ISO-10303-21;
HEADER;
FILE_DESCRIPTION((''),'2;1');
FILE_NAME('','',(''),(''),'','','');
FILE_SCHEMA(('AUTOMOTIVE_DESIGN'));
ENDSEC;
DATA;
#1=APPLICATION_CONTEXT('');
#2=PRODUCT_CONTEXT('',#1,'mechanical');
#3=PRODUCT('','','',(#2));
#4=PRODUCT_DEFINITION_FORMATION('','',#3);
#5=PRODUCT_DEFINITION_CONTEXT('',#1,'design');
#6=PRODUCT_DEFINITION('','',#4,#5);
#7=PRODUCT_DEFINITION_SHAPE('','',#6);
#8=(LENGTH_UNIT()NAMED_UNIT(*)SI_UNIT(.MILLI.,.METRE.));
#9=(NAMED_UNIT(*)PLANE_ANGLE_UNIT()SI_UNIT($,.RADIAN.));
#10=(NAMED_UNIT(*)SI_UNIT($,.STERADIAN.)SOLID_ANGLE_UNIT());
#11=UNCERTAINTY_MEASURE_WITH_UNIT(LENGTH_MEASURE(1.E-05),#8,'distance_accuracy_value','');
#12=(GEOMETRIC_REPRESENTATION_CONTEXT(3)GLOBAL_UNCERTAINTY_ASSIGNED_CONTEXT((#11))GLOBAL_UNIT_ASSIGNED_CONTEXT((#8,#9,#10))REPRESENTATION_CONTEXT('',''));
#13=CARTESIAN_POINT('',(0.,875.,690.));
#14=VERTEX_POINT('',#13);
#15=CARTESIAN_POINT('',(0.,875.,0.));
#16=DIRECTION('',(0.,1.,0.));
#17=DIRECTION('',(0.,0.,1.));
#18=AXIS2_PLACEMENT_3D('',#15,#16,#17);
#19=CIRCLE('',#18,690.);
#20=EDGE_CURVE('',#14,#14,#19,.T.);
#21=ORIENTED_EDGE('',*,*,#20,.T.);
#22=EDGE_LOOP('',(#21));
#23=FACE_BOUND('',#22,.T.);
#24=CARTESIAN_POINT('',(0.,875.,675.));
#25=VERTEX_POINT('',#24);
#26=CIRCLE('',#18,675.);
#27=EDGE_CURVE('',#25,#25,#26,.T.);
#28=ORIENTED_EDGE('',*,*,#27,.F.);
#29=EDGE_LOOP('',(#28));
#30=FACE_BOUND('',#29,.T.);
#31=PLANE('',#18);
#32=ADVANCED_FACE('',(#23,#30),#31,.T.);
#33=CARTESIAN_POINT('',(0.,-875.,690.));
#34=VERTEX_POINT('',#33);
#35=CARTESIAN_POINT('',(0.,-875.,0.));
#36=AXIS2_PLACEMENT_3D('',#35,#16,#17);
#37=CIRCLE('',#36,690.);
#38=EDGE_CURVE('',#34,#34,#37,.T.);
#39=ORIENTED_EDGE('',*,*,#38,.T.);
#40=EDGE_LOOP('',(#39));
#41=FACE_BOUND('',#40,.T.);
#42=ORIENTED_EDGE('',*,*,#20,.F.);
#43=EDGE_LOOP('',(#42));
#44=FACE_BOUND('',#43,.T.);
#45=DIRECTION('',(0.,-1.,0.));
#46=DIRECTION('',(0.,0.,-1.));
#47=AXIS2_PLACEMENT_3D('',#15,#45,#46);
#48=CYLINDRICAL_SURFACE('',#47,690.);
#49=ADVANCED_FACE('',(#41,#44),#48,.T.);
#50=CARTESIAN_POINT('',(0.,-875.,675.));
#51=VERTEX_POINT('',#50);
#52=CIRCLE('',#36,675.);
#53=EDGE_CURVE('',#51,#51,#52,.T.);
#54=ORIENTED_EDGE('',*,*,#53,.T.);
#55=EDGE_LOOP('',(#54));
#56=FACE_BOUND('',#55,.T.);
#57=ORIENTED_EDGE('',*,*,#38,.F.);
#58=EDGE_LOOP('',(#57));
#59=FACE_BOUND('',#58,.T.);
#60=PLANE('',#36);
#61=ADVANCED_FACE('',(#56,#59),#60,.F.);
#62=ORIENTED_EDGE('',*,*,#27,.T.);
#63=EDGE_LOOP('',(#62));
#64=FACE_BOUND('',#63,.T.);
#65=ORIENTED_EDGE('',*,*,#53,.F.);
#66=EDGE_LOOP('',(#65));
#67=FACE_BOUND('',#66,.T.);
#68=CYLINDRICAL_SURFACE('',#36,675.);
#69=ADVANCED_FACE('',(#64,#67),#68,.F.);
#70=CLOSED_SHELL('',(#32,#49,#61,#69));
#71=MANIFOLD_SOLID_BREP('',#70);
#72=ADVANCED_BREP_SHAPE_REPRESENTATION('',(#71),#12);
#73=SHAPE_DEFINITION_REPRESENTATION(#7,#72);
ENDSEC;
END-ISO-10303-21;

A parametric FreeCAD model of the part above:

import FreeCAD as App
import Part
import Sketcher

V = App.Vector

doc = App.newDocument("Part")
params = doc.addObject("Spreadsheet::Sheet", "Params")
for row, (alias, value) in enumerate([
    ("sketch1_diameter", "1380 mm"),
    ("pad1_length", "1750 mm"),
    ("sketch2_diameter", "1350 mm"),
], start=1):
    params.set(f"A{row}", alias)
    params.set(f"B{row}", "=" + value)
    params.setAlias(f"B{row}", alias)

body = doc.addObject("PartDesign::Body", "Body")

sketch1 = body.newObject("Sketcher::SketchObject", "Sketch")
sketch1.AttachmentSupport = (doc.getObject("XZ_Plane"), [""])
sketch1.MapMode = "FlatFace"
sketch1.addGeometry(Part.Circle(V(0, 0, 0), V(0, 0, 1), 690), False)
sketch1.addConstraint(Sketcher.Constraint("Coincident", 0, 3, -1, 1))
sketch1.addConstraint(Sketcher.Constraint("Diameter", 0, 1380.0))
sketch1.setExpression("Constraints[1]", "Params.sketch1_diameter")
pad1 = body.newObject("PartDesign::Pad", "Pad")
pad1.Profile = sketch1
pad1.setExpression("Length", "Params.pad1_length")
pad1.Midplane = True

sketch2 = body.newObject("Sketcher::SketchObject", "Sketch001")
sketch2.AttachmentSupport = (doc.getObject("XZ_Plane"), [""])
sketch2.MapMode = "FlatFace"
sketch2.addGeometry(Part.Circle(V(0, 0, 0), V(0, 0, 1), 675), False)
sketch2.addConstraint(Sketcher.Constraint("Coincident", 0, 3, -1, 1))
sketch2.addConstraint(Sketcher.Constraint("Diameter", 0, 1350.0))
sketch2.setExpression("Constraints[1]", "Params.sketch2_diameter")
pocket1 = body.newObject("PartDesign::Pocket", "Pocket")
pocket1.Profile = sketch2
pocket1.Type = "ThroughAll"
pocket1.Midplane = True

doc.recompute()
